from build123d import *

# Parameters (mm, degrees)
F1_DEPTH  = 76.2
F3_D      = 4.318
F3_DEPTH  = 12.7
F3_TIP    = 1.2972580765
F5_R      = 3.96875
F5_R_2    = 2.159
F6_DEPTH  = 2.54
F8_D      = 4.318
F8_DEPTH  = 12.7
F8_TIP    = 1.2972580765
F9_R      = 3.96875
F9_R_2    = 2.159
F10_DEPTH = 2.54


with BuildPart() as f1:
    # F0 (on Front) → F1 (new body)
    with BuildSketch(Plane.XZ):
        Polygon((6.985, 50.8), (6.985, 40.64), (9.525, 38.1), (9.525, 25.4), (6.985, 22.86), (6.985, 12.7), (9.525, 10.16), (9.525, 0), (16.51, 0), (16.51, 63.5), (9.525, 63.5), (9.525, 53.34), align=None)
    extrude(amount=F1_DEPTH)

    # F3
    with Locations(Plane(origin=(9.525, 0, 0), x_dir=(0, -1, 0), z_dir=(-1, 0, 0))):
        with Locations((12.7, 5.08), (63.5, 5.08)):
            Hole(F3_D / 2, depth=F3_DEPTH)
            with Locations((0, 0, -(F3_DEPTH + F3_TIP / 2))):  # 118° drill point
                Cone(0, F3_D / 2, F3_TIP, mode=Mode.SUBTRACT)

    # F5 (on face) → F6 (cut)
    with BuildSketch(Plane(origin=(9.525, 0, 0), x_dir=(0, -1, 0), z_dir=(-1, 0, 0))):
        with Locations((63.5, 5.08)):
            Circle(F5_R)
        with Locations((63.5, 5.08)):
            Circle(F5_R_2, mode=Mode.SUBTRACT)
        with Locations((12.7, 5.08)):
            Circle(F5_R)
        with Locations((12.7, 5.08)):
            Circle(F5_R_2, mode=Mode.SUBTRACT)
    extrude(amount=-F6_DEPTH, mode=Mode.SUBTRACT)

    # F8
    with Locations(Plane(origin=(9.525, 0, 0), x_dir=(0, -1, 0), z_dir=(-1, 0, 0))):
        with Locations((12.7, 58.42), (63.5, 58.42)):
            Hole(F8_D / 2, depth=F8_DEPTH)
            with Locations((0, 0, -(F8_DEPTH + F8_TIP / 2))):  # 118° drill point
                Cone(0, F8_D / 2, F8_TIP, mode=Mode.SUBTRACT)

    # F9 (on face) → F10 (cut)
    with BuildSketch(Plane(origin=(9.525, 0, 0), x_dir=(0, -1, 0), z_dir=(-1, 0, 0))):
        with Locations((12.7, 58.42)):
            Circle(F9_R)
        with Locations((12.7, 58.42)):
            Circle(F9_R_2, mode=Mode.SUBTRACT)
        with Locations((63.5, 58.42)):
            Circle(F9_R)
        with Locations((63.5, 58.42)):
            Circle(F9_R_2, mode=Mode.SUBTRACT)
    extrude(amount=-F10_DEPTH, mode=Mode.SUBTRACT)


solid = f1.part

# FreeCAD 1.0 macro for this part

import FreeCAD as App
import Part
import Sketcher
from FreeCAD import Vector
Q = App.Units.Quantity

doc = App.newDocument("Part")
body = doc.addObject("PartDesign::Body", "Body")

sketch1 = body.newObject("Sketcher::SketchObject", "Sketch")
sketch1.AttachmentSupport = (doc.getObject("XZ_Plane"), [""])
sketch1.MapMode = "FlatFace"
sketch1.addGeometry([
    Part.LineSegment(Vector(7, 50.8, 0), Vector(7, 40.6, 0)),
    Part.LineSegment(Vector(7, 40.6, 0), Vector(9.5, 38.1, 0)),
    Part.LineSegment(Vector(9.5, 38.1, 0), Vector(9.5, 25.4, 0)),
    Part.LineSegment(Vector(9.5, 25.4, 0), Vector(7, 22.9, 0)),
    Part.LineSegment(Vector(7, 22.9, 0), Vector(7, 12.7, 0)),
    Part.LineSegment(Vector(7, 12.7, 0), Vector(9.5, 10.2, 0)),
    Part.LineSegment(Vector(9.5, 10.2, 0), Vector(9.5, 0, 0)),
    Part.LineSegment(Vector(9.5, 0, 0), Vector(16.5, 0, 0)),
    Part.LineSegment(Vector(16.5, 0, 0), Vector(16.5, 63.5, 0)),
    Part.LineSegment(Vector(16.5, 63.5, 0), Vector(9.5, 63.5, 0)),
    Part.LineSegment(Vector(9.5, 63.5, 0), Vector(9.5, 53.3, 0)),
    Part.LineSegment(Vector(9.5, 53.3, 0), Vector(7, 50.8, 0)),
], False)
sketch1.addConstraint([
    Sketcher.Constraint("Coincident", 0, 2, 1, 1),
    Sketcher.Constraint("Coincident", 1, 2, 2, 1),
    Sketcher.Constraint("Coincident", 2, 2, 3, 1),
    Sketcher.Constraint("Coincident", 3, 2, 4, 1),
    Sketcher.Constraint("Coincident", 4, 2, 5, 1),
    Sketcher.Constraint("Coincident", 5, 2, 6, 1),
    Sketcher.Constraint("Coincident", 6, 2, 7, 1),
    Sketcher.Constraint("Coincident", 7, 2, 8, 1),
    Sketcher.Constraint("Coincident", 8, 2, 9, 1),
    Sketcher.Constraint("Coincident", 9, 2, 10, 1),
    Sketcher.Constraint("Coincident", 10, 2, 11, 1),
    Sketcher.Constraint("Coincident", 11, 2, 0, 1),
    Sketcher.Constraint("Vertical", 0),
    Sketcher.Constraint("Vertical", 2),
    Sketcher.Constraint("Vertical", 4),
    Sketcher.Constraint("Vertical", 6),
    Sketcher.Constraint("Horizontal", 7),
    Sketcher.Constraint("Vertical", 8),
    Sketcher.Constraint("Horizontal", 9),
    Sketcher.Constraint("Vertical", 10),
    Sketcher.Constraint("PointOnObject", 6, 2, -1),
    Sketcher.Constraint("Perpendicular", 1, 3),
    Sketcher.Constraint("Perpendicular", 3, 5),
    Sketcher.Constraint("Perpendicular", 5, 11),
    Sketcher.Constraint("Vertical", 0, 2, 3, 2),
    Sketcher.Constraint("Vertical", 2, 2, 5, 2),
    Sketcher.Constraint("Vertical", 6, 2, 9, 2),
    Sketcher.Constraint("Equal", 0, 4),
    Sketcher.Constraint("Equal", 4, 6),
    Sketcher.Constraint("Equal", 6, 10),
    Sketcher.Constraint("Equal", 1, 3),
    Sketcher.Constraint("DistanceY", 0, 2, 0, 1, Q("0.4 in")),
    Sketcher.Constraint("DistanceY", 2, 2, 2, 1, Q("0.5 in")),
    Sketcher.Constraint("DistanceY", 8, 1, 8, 2, Q("2.5 in")),
    Sketcher.Constraint("DistanceX", 7, 1, 7, 2, Q("0.275 in")),
    Sketcher.Constraint("DistanceX", -1, 1, 7, 2, Q("0.65 in")),
])
pad1 = body.newObject("PartDesign::Pad", "Pad")
pad1.Profile = sketch1
pad1.Length = Q("3 in")

sketch2 = body.newObject("Sketcher::SketchObject", "Sketch001")
sketch2.AttachmentSupport = (doc.getObject("YZ_Plane"), [""])
sketch2.MapMode = "FlatFace"
sketch2.AttachmentOffset = App.Placement(Vector(0, 0, 0.375 * 25.4), App.Rotation())
sketch2.addGeometry([
    Part.Circle(Vector(-12.7, 5.1, 0), Vector(0, 0, 1), 2.2),
    Part.Circle(Vector(-63.5, 5.1, 0), Vector(0, 0, 1), 2.2),
], False)
sketch2.addConstraint([
    Sketcher.Constraint("Equal", 0, 1),
    Sketcher.Constraint("Horizontal", 0, 3, 1, 3),
    Sketcher.Constraint("Diameter", 0, Q("0.17 in")),
    Sketcher.Constraint("DistanceX", 1, 3, 0, 3, Q("2 in")),
    Sketcher.Constraint("DistanceX", 0, 3, -1, 1, Q("0.5 in")),
    Sketcher.Constraint("DistanceY", -1, 1, 0, 3, Q("0.2 in")),
])
doc.recompute()
hole = body.newObject("PartDesign::Hole", "Hole")
hole.Profile = sketch2
hole.ThreadType = "None"
hole.Diameter = Q("0.17 in")
hole.DepthType = "Dimension"
hole.Depth = Q("0.5 in")
hole.DrillPoint = "Angled"
hole.DrillPointAngle = 118
hole.Reversed = True

sketch3 = body.newObject("Sketcher::SketchObject", "Sketch002")
sketch3.AttachmentSupport = (doc.getObject("YZ_Plane"), [""])
sketch3.MapMode = "FlatFace"
sketch3.AttachmentOffset = App.Placement(Vector(0, 0, 0.375 * 25.4), App.Rotation())
sketch3.addGeometry([
    Part.Circle(Vector(-63.5, 5.1, 0), Vector(0, 0, 1), 4),
    Part.Circle(Vector(-63.5, 5.1, 0), Vector(0, 0, 1), 2.2),
    Part.Circle(Vector(-12.7, 5.1, 0), Vector(0, 0, 1), 4),
    Part.Circle(Vector(-12.7, 5.1, 0), Vector(0, 0, 1), 2.2),
], False)
sketch3.addConstraint([
    Sketcher.Constraint("Coincident", 1, 3, 0, 3),
    Sketcher.Constraint("Coincident", 3, 3, 2, 3),
    Sketcher.Constraint("Equal", 0, 2),
    Sketcher.Constraint("Equal", 1, 3),
    Sketcher.Constraint("Horizontal", 1, 3, 2, 3),
    Sketcher.Constraint("Diameter", 1, Q("0.17 in")),
    Sketcher.Constraint("Diameter", 0, Q("0.3125 in")),
    Sketcher.Constraint("DistanceX", 0, 3, 2, 3, Q("2 in")),
    Sketcher.Constraint("DistanceX", 0, 3, -1, 1, Q("2.5 in")),
    Sketcher.Constraint("DistanceY", -1, 1, 0, 3, Q("0.2 in")),
])
pocket1 = body.newObject("PartDesign::Pocket", "Pocket")
pocket1.Profile = sketch3
pocket1.Length = Q("0.1 in")
pocket1.Reversed = True

sketch4 = body.newObject("Sketcher::SketchObject", "Sketch003")
sketch4.AttachmentSupport = (doc.getObject("YZ_Plane"), [""])
sketch4.MapMode = "FlatFace"
sketch4.AttachmentOffset = App.Placement(Vector(0, 0, 0.375 * 25.4), App.Rotation())
sketch4.addGeometry([
    Part.Circle(Vector(-12.7, 58.4, 0), Vector(0, 0, 1), 2.2),
    Part.Circle(Vector(-63.5, 58.4, 0), Vector(0, 0, 1), 2.2),
], False)
sketch4.addConstraint([
    Sketcher.Constraint("Equal", 0, 1),
    Sketcher.Constraint("Horizontal", 0, 3, 1, 3),
    Sketcher.Constraint("Diameter", 0, Q("0.17 in")),
    Sketcher.Constraint("DistanceX", 1, 3, 0, 3, Q("2 in")),
    Sketcher.Constraint("DistanceX", 0, 3, -1, 1, Q("0.5 in")),
    Sketcher.Constraint("DistanceY", -1, 1, 0, 3, Q("2.3 in")),
])
doc.recompute()
hole2 = body.newObject("PartDesign::Hole", "Hole001")
hole2.Profile = sketch4
hole2.ThreadType = "None"
hole2.Diameter = Q("0.17 in")
hole2.DepthType = "Dimension"
hole2.Depth = Q("0.5 in")
hole2.DrillPoint = "Angled"
hole2.DrillPointAngle = 118
hole2.Reversed = True

sketch5 = body.newObject("Sketcher::SketchObject", "Sketch004")
sketch5.AttachmentSupport = (doc.getObject("YZ_Plane"), [""])
sketch5.MapMode = "FlatFace"
sketch5.AttachmentOffset = App.Placement(Vector(0, 0, 0.375 * 25.4), App.Rotation())
sketch5.addGeometry([
    Part.Circle(Vector(-12.7, 58.4, 0), Vector(0, 0, 1), 4),
    Part.Circle(Vector(-12.7, 58.4, 0), Vector(0, 0, 1), 2.2),
    Part.Circle(Vector(-63.5, 58.4, 0), Vector(0, 0, 1), 4),
    Part.Circle(Vector(-63.5, 58.4, 0), Vector(0, 0, 1), 2.2),
], False)
sketch5.addConstraint([
    Sketcher.Constraint("Coincident", 1, 3, 0, 3),
    Sketcher.Constraint("Coincident", 3, 3, 2, 3),
    Sketcher.Constraint("Equal", 0, 2),
    Sketcher.Constraint("Equal", 1, 3),
    Sketcher.Constraint("Horizontal", 1, 3, 2, 3),
    Sketcher.Constraint("Diameter", 1, Q("0.17 in")),
    Sketcher.Constraint("Diameter", 0, Q("0.3125 in")),
    Sketcher.Constraint("DistanceX", 2, 3, 0, 3, Q("2 in")),
    Sketcher.Constraint("DistanceX", 0, 3, -1, 1, Q("0.5 in")),
    Sketcher.Constraint("DistanceY", -1, 1, 0, 3, Q("2.3 in")),
])
pocket2 = body.newObject("PartDesign::Pocket", "Pocket001")
pocket2.Profile = sketch5
pocket2.Length = Q("0.1 in")
pocket2.Reversed = True

doc.recompute()
